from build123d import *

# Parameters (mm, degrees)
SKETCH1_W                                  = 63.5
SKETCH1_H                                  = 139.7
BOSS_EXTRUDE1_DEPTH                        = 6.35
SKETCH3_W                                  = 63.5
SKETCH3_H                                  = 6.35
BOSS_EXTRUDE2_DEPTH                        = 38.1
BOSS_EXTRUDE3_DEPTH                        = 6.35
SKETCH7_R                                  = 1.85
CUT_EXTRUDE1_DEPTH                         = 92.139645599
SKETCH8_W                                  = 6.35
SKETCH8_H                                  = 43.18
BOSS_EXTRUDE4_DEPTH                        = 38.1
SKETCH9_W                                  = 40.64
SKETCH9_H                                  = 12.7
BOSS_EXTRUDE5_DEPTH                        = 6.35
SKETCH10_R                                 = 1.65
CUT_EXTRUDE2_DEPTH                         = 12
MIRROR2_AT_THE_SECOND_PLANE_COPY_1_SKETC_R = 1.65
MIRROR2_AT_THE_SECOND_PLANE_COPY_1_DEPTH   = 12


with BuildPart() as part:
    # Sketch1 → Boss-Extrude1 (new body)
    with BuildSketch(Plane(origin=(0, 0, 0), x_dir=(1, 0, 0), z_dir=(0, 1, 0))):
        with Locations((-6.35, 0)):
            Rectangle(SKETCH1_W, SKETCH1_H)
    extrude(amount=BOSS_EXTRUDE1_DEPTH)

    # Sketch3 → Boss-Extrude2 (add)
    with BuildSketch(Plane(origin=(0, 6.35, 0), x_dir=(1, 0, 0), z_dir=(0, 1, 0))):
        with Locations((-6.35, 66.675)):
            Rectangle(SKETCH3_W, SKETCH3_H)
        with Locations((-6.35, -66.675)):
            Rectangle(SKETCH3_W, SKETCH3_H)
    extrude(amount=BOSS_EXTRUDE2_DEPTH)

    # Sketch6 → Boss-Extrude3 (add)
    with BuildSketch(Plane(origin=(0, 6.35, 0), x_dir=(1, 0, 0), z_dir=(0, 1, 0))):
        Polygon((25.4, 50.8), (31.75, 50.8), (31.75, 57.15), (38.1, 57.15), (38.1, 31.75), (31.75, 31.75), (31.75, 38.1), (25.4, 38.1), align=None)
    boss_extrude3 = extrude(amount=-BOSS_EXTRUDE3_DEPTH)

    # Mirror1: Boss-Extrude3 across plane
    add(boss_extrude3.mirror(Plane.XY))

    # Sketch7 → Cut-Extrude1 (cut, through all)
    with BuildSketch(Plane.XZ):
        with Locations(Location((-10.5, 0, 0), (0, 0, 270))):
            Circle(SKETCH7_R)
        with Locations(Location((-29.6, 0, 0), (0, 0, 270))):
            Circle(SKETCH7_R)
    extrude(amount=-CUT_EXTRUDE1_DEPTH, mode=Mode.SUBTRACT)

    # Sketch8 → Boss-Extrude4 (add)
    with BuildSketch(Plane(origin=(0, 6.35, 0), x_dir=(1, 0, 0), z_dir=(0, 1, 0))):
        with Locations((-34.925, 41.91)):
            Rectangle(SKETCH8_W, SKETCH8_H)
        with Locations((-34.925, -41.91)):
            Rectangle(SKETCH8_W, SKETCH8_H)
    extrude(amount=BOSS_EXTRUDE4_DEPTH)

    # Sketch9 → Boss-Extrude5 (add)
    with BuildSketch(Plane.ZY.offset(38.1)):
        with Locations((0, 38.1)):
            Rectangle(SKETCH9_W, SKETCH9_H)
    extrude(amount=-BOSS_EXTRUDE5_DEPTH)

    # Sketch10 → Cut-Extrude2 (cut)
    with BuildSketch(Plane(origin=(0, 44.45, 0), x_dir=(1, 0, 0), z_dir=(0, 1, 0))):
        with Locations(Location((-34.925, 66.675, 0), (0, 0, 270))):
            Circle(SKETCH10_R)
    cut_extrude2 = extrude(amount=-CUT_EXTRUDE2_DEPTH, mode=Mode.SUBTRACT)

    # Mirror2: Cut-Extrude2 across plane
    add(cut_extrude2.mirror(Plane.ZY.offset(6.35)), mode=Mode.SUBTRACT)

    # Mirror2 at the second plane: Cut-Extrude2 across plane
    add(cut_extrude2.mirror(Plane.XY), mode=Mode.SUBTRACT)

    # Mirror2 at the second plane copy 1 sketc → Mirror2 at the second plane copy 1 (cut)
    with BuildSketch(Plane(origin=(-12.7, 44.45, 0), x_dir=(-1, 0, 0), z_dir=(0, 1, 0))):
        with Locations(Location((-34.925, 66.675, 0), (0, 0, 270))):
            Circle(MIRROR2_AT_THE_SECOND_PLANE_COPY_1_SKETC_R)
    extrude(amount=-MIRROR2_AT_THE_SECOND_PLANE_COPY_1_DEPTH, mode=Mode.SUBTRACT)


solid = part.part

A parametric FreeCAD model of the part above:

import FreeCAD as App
import Part
import Sketcher

V = App.Vector
Q = App.Units.Quantity


def add_polygon(sketch, points):
    """Adds a closed chain of lines whose ends are joined by coincident constraints."""
    first, n = sketch.GeometryCount, len(points)
    for a, b in zip(points, points[1:] + points[:1]):
        sketch.addGeometry(Part.LineSegment(App.Vector(*a, 0), App.Vector(*b, 0)), False)
    for i in range(n):
        sketch.addConstraint(Sketcher.Constraint("Coincident", first + i, 2, first + (i + 1) % n, 1))

doc = App.newDocument("Part")
body = doc.addObject("PartDesign::Body", "Body")

sketch1 = body.newObject("Sketcher::SketchObject", "Sketch")
sketch1.AttachmentSupport = (doc.getObject("XZ_Plane"), [""])
sketch1.MapMode = "FlatFace"
add_polygon(sketch1, [(-38, -70), (-38, 70), (25, 70), (25, -70)])
sketch1.addConstraint(Sketcher.Constraint("Vertical", 0))
sketch1.addConstraint(Sketcher.Constraint("Horizontal", 1))
sketch1.addConstraint(Sketcher.Constraint("Vertical", 2))
sketch1.addConstraint(Sketcher.Constraint("Horizontal", 3))
sketch1.addConstraint(Sketcher.Constraint("DistanceX", 1, 1, 1, 2, Q("2.5 in")))
sketch1.addConstraint(Sketcher.Constraint("DistanceY", 0, 1, 0, 2, Q("5.5 in")))
sketch1.addConstraint(Sketcher.Constraint("DistanceX", -1, 1, 1, 2, Q("1 in")))
sketch1.addConstraint(Sketcher.Constraint("DistanceY", -1, 1, 0, 2, Q("2.75 in")))
pad1 = body.newObject("PartDesign::Pad", "Pad")
pad1.Profile = sketch1
pad1.Length = Q("0.25 in")
pad1.Reversed = True

sketch2 = body.newObject("Sketcher::SketchObject", "Sketch001")
sketch2.AttachmentSupport = (doc.getObject("XZ_Plane"), [""])
sketch2.MapMode = "FlatFace"
sketch2.AttachmentOffset = App.Placement(V(0, 0, -0.25 * 25.4), App.Rotation())
add_polygon(sketch2, [(-38, -70), (-38, -64), (25, -64), (25, -70)])
add_polygon(sketch2, [(-38, 64), (-38, 70), (25, 70), (25, 64)])
sketch2.addConstraint(Sketcher.Constraint("Vertical", 0))
sketch2.addConstraint(Sketcher.Constraint("Horizontal", 1))
sketch2.addConstraint(Sketcher.Constraint("Vertical", 2))
sketch2.addConstraint(Sketcher.Constraint("Horizontal", 3))
sketch2.addConstraint(Sketcher.Constraint("Vertical", 4))
sketch2.addConstraint(Sketcher.Constraint("Horizontal", 5))
sketch2.addConstraint(Sketcher.Constraint("Vertical", 6))
sketch2.addConstraint(Sketcher.Constraint("Horizontal", 7))
sketch2.addConstraint(Sketcher.Constraint("Symmetric", 3, 2, 4, 2, -1))
sketch2.addConstraint(Sketcher.Constraint("Symmetric", 1, 2, 6, 2, -1))
sketch2.addConstraint(Sketcher.Constraint("DistanceX", 1, 1, 1, 2, Q("2.5 in")))
sketch2.addConstraint(Sketcher.Constraint("DistanceX", -1, 1, 1, 2, Q("1 in")))
sketch2.addConstraint(Sketcher.Constraint("DistanceY", 1, 2, 6, 2, Q("5 in")))
sketch2.addConstraint(Sketcher.Constraint("DistanceY", 0, 1, 0, 2, Q("0.25 in")))
pad2 = body.newObject("PartDesign::Pad", "Pad001")
pad2.Profile = sketch2
pad2.Length = Q("1.5 in")
pad2.Reversed = True

sketch3 = body.newObject("Sketcher::SketchObject", "Sketch002")
sketch3.AttachmentSupport = (doc.getObject("XZ_Plane"), [""])
sketch3.MapMode = "FlatFace"
sketch3.AttachmentOffset = App.Placement(V(0, 0, -0.25 * 25.4), App.Rotation())
add_polygon(sketch3, [(32, -51), (25, -51), (25, -38), (32, -38), (32, -32), (38, -32), (38, -57), (32, -57)])
sketch3.addConstraint(Sketcher.Constraint("Horizontal", 0))
sketch3.addConstraint(Sketcher.Constraint("Vertical", 1))
sketch3.addConstraint(Sketcher.Constraint("Horizontal", 2))
sketch3.addConstraint(Sketcher.Constraint("Vertical", 3))
sketch3.addConstraint(Sketcher.Constraint("Horizontal", 4))
sketch3.addConstraint(Sketcher.Constraint("Vertical", 5))
sketch3.addConstraint(Sketcher.Constraint("Horizontal", 6))
sketch3.addConstraint(Sketcher.Constraint("Vertical", 7))
sketch3.addConstraint(Sketcher.Constraint("Vertical", 3, 2, 6, 2))
sketch3.addConstraint(Sketcher.Constraint("Equal", 2, 4))
sketch3.addConstraint(Sketcher.Constraint("Equal", 6, 3))
sketch3.addConstraint(Sketcher.Constraint("Equal", 3, 7))
sketch3.addConstraint(Sketcher.Constraint("DistanceY", 5, 2, 5, 1, Q("1 in")))
sketch3.addConstraint(Sketcher.Constraint("DistanceY", 1, 1, 1, 2, Q("0.5 in")))
sketch3.addConstraint(Sketcher.Constraint("DistanceX", -1, 1, 0, 2, Q("1 in")))
sketch3.addConstraint(Sketcher.Constraint("DistanceY", 0, 2, -1, 1, Q("2 in")))
pad3 = body.newObject("PartDesign::Pad", "Pad002")
pad3.Profile = sketch3
pad3.Length = Q("0.25 in")
doc.recompute()

mirrored = body.newObject("PartDesign::Mirrored", "Mirrored")
mirrored.Originals = [pad3]
mirrored.MirrorPlane = (doc.getObject("XY_Plane"), [""])
body.Tip = mirrored

sketch4 = body.newObject("Sketcher::SketchObject", "Sketch003")
sketch4.AttachmentSupport = (doc.getObject("XZ_Plane"), [""])
sketch4.MapMode = "FlatFace"
sketch4.addGeometry(Part.Circle(V(-10.5, 0, 0), V(0, 0, 1), 1.9), False)
sketch4.addGeometry(Part.Circle(V(-29.6, 0, 0), V(0, 0, 1), 1.9), False)
sketch4.addConstraint(Sketcher.Constraint("Equal", 0, 1))
sketch4.addConstraint(Sketcher.Constraint("PointOnObject", 0, 3, -1))
sketch4.addConstraint(Sketcher.Constraint("PointOnObject", 1, 3, -1))
sketch4.addConstraint(Sketcher.Constraint("Diameter", 0, Q("3.7 mm")))
sketch4.addConstraint(Sketcher.Constraint("DistanceX", 0, 3, -1, 1, Q("10.5 mm")))
sketch4.addConstraint(Sketcher.Constraint("DistanceX", 1, 3, -1, 1, Q("29.6 mm")))
pocket1 = body.newObject("PartDesign::Pocket", "Pocket")
pocket1.Profile = sketch4
pocket1.Type = "ThroughAll"

sketch5 = body.newObject("Sketcher::SketchObject", "Sketch004")
sketch5.AttachmentSupport = (doc.getObject("XZ_Plane"), [""])
sketch5.MapMode = "FlatFace"
sketch5.AttachmentOffset = App.Placement(V(0, 0, -0.25 * 25.4), App.Rotation())
add_polygon(sketch5, [(-38, -64), (-38, -20), (-32, -20), (-32, -64)])
add_polygon(sketch5, [(-38, 20), (-38, 64), (-32, 64), (-32, 20)])
sketch5.addConstraint(Sketcher.Constraint("Vertical", 0))
sketch5.addConstraint(Sketcher.Constraint("Horizontal", 1))
sketch5.addConstraint(Sketcher.Constraint("Vertical", 2))
sketch5.addConstraint(Sketcher.Constraint("Horizontal", 3))
sketch5.addConstraint(Sketcher.Constraint("Vertical", 4))
sketch5.addConstraint(Sketcher.Constraint("Horizontal", 5))
sketch5.addConstraint(Sketcher.Constraint("Vertical", 6))
sketch5.addConstraint(Sketcher.Constraint("Horizontal", 7))
sketch5.addConstraint(Sketcher.Constraint("Symmetric", 3, 2, 4, 2, -1))
sketch5.addConstraint(Sketcher.Constraint("Symmetric", 1, 2, 6, 2, -1))
sketch5.addConstraint(Sketcher.Constraint("DistanceY", 0, 1, 0, 2, Q("1.7 in")))
sketch5.addConstraint(Sketcher.Constraint("DistanceY", 3, 2, 4, 2, Q("5 in")))
sketch5.addConstraint(Sketcher.Constraint("DistanceX", 1, 1, 1, 2, Q("0.25 in")))
sketch5.addConstraint(Sketcher.Constraint("DistanceX", 0, 2, -1, 1, Q("1.5 in")))
pad4 = body.newObject("PartDesign::Pad", "Pad003")
pad4.Profile = sketch5
pad4.Length = Q("1.5 in")
pad4.Reversed = True

sketch6 = body.newObject("Sketcher::SketchObject", "Sketch005")
sketch6.AttachmentSupport = (doc.getObject("YZ_Plane"), [""])
sketch6.MapMode = "FlatFace"
sketch6.AttachmentOffset = App.Placement(V(0, 0, -1.5 * 25.4), App.Rotation())
add_polygon(sketch6, [(44, -20), (32, -20), (32, 20), (44, 20)])
sketch6.addConstraint(Sketcher.Constraint("Horizontal", 0))
sketch6.addConstraint(Sketcher.Constraint("Vertical", 1))
sketch6.addConstraint(Sketcher.Constraint("Horizontal", 2))
sketch6.addConstraint(Sketcher.Constraint("Vertical", 3))
sketch6.addConstraint(Sketcher.Constraint("DistanceX", 0, 2, 0, 1, Q("0.5 in")))
sketch6.addConstraint(Sketcher.Constraint("DistanceY", 1, 1, 1, 2, Q("1.6 in")))
sketch6.addConstraint(Sketcher.Constraint("DistanceY", 0, 2, -1, 1, Q("0.8 in")))
sketch6.addConstraint(Sketcher.Constraint("DistanceX", -1, 1, 0, 2, Q("1.25 in")))
pad5 = body.newObject("PartDesign::Pad", "Pad004")
pad5.Profile = sketch6
pad5.Length = Q("0.25 in")

sketch7 = body.newObject("Sketcher::SketchObject", "Sketch006")
sketch7.AttachmentSupport = (doc.getObject("XZ_Plane"), [""])
sketch7.MapMode = "FlatFace"
sketch7.AttachmentOffset = App.Placement(V(0, 0, -1.75 * 25.4), App.Rotation())
sketch7.addGeometry(Part.Circle(V(-34.9, -66.7, 0), V(0, 0, 1), 1.6), False)
sketch7.addConstraint(Sketcher.Constraint("Diameter", 0, Q("3.3 mm")))
sketch7.addConstraint(Sketcher.Constraint("DistanceX", 0, 3, -1, 1, Q("1.375 in")))
sketch7.addConstraint(Sketcher.Constraint("DistanceY", 0, 3, -1, 1, Q("2.625 in")))
pocket2 = body.newObject("PartDesign::Pocket", "Pocket001")
pocket2.Profile = sketch7
pocket2.Length = 12
pocket2.Reversed = True
doc.recompute()

datumplane = body.newObject("PartDesign::Plane", "DatumPlane")
datumplane.AttachmentSupport = (doc.getObject("YZ_Plane"), [""])
datumplane.MapMode = "FlatFace"
datumplane.AttachmentOffset = App.Placement(V(0, 0, -0.25 * 25.4), App.Rotation())
mirrored2 = body.newObject("PartDesign::Mirrored", "Mirrored001")
mirrored2.Originals = [pocket2]
mirrored2.MirrorPlane = (datumplane, [""])
body.Tip = mirrored2
doc.recompute()

mirrored3 = body.newObject("PartDesign::Mirrored", "Mirrored002")
mirrored3.Originals = [pocket2]
mirrored3.MirrorPlane = (doc.getObject("XY_Plane"), [""])
body.Tip = mirrored3

sketch8 = body.newObject("Sketcher::SketchObject", "Sketch007")
sketch8.AttachmentSupport = (doc.getObject("XZ_Plane"), [""])
sketch8.MapMode = "FlatFace"
sketch8.AttachmentOffset = App.Placement(V(0, 0, -1.75 * 25.4), App.Rotation())
sketch8.addGeometry(Part.Circle(V(22.2, 66.7, 0), V(0, 0, 1), 1.6), False)
sketch8.addConstraint(Sketcher.Constraint("Diameter", 0, Q("3.3 mm")))
sketch8.addConstraint(Sketcher.Constraint("DistanceX", -1, 1, 0, 3, Q("0.875 in")))
sketch8.addConstraint(Sketcher.Constraint("DistanceY", -1, 1, 0, 3, Q("2.625 in")))
pocket3 = body.newObject("PartDesign::Pocket", "Pocket002")
pocket3.Profile = sketch8
pocket3.Length = 12
pocket3.Reversed = True

doc.recompute()
